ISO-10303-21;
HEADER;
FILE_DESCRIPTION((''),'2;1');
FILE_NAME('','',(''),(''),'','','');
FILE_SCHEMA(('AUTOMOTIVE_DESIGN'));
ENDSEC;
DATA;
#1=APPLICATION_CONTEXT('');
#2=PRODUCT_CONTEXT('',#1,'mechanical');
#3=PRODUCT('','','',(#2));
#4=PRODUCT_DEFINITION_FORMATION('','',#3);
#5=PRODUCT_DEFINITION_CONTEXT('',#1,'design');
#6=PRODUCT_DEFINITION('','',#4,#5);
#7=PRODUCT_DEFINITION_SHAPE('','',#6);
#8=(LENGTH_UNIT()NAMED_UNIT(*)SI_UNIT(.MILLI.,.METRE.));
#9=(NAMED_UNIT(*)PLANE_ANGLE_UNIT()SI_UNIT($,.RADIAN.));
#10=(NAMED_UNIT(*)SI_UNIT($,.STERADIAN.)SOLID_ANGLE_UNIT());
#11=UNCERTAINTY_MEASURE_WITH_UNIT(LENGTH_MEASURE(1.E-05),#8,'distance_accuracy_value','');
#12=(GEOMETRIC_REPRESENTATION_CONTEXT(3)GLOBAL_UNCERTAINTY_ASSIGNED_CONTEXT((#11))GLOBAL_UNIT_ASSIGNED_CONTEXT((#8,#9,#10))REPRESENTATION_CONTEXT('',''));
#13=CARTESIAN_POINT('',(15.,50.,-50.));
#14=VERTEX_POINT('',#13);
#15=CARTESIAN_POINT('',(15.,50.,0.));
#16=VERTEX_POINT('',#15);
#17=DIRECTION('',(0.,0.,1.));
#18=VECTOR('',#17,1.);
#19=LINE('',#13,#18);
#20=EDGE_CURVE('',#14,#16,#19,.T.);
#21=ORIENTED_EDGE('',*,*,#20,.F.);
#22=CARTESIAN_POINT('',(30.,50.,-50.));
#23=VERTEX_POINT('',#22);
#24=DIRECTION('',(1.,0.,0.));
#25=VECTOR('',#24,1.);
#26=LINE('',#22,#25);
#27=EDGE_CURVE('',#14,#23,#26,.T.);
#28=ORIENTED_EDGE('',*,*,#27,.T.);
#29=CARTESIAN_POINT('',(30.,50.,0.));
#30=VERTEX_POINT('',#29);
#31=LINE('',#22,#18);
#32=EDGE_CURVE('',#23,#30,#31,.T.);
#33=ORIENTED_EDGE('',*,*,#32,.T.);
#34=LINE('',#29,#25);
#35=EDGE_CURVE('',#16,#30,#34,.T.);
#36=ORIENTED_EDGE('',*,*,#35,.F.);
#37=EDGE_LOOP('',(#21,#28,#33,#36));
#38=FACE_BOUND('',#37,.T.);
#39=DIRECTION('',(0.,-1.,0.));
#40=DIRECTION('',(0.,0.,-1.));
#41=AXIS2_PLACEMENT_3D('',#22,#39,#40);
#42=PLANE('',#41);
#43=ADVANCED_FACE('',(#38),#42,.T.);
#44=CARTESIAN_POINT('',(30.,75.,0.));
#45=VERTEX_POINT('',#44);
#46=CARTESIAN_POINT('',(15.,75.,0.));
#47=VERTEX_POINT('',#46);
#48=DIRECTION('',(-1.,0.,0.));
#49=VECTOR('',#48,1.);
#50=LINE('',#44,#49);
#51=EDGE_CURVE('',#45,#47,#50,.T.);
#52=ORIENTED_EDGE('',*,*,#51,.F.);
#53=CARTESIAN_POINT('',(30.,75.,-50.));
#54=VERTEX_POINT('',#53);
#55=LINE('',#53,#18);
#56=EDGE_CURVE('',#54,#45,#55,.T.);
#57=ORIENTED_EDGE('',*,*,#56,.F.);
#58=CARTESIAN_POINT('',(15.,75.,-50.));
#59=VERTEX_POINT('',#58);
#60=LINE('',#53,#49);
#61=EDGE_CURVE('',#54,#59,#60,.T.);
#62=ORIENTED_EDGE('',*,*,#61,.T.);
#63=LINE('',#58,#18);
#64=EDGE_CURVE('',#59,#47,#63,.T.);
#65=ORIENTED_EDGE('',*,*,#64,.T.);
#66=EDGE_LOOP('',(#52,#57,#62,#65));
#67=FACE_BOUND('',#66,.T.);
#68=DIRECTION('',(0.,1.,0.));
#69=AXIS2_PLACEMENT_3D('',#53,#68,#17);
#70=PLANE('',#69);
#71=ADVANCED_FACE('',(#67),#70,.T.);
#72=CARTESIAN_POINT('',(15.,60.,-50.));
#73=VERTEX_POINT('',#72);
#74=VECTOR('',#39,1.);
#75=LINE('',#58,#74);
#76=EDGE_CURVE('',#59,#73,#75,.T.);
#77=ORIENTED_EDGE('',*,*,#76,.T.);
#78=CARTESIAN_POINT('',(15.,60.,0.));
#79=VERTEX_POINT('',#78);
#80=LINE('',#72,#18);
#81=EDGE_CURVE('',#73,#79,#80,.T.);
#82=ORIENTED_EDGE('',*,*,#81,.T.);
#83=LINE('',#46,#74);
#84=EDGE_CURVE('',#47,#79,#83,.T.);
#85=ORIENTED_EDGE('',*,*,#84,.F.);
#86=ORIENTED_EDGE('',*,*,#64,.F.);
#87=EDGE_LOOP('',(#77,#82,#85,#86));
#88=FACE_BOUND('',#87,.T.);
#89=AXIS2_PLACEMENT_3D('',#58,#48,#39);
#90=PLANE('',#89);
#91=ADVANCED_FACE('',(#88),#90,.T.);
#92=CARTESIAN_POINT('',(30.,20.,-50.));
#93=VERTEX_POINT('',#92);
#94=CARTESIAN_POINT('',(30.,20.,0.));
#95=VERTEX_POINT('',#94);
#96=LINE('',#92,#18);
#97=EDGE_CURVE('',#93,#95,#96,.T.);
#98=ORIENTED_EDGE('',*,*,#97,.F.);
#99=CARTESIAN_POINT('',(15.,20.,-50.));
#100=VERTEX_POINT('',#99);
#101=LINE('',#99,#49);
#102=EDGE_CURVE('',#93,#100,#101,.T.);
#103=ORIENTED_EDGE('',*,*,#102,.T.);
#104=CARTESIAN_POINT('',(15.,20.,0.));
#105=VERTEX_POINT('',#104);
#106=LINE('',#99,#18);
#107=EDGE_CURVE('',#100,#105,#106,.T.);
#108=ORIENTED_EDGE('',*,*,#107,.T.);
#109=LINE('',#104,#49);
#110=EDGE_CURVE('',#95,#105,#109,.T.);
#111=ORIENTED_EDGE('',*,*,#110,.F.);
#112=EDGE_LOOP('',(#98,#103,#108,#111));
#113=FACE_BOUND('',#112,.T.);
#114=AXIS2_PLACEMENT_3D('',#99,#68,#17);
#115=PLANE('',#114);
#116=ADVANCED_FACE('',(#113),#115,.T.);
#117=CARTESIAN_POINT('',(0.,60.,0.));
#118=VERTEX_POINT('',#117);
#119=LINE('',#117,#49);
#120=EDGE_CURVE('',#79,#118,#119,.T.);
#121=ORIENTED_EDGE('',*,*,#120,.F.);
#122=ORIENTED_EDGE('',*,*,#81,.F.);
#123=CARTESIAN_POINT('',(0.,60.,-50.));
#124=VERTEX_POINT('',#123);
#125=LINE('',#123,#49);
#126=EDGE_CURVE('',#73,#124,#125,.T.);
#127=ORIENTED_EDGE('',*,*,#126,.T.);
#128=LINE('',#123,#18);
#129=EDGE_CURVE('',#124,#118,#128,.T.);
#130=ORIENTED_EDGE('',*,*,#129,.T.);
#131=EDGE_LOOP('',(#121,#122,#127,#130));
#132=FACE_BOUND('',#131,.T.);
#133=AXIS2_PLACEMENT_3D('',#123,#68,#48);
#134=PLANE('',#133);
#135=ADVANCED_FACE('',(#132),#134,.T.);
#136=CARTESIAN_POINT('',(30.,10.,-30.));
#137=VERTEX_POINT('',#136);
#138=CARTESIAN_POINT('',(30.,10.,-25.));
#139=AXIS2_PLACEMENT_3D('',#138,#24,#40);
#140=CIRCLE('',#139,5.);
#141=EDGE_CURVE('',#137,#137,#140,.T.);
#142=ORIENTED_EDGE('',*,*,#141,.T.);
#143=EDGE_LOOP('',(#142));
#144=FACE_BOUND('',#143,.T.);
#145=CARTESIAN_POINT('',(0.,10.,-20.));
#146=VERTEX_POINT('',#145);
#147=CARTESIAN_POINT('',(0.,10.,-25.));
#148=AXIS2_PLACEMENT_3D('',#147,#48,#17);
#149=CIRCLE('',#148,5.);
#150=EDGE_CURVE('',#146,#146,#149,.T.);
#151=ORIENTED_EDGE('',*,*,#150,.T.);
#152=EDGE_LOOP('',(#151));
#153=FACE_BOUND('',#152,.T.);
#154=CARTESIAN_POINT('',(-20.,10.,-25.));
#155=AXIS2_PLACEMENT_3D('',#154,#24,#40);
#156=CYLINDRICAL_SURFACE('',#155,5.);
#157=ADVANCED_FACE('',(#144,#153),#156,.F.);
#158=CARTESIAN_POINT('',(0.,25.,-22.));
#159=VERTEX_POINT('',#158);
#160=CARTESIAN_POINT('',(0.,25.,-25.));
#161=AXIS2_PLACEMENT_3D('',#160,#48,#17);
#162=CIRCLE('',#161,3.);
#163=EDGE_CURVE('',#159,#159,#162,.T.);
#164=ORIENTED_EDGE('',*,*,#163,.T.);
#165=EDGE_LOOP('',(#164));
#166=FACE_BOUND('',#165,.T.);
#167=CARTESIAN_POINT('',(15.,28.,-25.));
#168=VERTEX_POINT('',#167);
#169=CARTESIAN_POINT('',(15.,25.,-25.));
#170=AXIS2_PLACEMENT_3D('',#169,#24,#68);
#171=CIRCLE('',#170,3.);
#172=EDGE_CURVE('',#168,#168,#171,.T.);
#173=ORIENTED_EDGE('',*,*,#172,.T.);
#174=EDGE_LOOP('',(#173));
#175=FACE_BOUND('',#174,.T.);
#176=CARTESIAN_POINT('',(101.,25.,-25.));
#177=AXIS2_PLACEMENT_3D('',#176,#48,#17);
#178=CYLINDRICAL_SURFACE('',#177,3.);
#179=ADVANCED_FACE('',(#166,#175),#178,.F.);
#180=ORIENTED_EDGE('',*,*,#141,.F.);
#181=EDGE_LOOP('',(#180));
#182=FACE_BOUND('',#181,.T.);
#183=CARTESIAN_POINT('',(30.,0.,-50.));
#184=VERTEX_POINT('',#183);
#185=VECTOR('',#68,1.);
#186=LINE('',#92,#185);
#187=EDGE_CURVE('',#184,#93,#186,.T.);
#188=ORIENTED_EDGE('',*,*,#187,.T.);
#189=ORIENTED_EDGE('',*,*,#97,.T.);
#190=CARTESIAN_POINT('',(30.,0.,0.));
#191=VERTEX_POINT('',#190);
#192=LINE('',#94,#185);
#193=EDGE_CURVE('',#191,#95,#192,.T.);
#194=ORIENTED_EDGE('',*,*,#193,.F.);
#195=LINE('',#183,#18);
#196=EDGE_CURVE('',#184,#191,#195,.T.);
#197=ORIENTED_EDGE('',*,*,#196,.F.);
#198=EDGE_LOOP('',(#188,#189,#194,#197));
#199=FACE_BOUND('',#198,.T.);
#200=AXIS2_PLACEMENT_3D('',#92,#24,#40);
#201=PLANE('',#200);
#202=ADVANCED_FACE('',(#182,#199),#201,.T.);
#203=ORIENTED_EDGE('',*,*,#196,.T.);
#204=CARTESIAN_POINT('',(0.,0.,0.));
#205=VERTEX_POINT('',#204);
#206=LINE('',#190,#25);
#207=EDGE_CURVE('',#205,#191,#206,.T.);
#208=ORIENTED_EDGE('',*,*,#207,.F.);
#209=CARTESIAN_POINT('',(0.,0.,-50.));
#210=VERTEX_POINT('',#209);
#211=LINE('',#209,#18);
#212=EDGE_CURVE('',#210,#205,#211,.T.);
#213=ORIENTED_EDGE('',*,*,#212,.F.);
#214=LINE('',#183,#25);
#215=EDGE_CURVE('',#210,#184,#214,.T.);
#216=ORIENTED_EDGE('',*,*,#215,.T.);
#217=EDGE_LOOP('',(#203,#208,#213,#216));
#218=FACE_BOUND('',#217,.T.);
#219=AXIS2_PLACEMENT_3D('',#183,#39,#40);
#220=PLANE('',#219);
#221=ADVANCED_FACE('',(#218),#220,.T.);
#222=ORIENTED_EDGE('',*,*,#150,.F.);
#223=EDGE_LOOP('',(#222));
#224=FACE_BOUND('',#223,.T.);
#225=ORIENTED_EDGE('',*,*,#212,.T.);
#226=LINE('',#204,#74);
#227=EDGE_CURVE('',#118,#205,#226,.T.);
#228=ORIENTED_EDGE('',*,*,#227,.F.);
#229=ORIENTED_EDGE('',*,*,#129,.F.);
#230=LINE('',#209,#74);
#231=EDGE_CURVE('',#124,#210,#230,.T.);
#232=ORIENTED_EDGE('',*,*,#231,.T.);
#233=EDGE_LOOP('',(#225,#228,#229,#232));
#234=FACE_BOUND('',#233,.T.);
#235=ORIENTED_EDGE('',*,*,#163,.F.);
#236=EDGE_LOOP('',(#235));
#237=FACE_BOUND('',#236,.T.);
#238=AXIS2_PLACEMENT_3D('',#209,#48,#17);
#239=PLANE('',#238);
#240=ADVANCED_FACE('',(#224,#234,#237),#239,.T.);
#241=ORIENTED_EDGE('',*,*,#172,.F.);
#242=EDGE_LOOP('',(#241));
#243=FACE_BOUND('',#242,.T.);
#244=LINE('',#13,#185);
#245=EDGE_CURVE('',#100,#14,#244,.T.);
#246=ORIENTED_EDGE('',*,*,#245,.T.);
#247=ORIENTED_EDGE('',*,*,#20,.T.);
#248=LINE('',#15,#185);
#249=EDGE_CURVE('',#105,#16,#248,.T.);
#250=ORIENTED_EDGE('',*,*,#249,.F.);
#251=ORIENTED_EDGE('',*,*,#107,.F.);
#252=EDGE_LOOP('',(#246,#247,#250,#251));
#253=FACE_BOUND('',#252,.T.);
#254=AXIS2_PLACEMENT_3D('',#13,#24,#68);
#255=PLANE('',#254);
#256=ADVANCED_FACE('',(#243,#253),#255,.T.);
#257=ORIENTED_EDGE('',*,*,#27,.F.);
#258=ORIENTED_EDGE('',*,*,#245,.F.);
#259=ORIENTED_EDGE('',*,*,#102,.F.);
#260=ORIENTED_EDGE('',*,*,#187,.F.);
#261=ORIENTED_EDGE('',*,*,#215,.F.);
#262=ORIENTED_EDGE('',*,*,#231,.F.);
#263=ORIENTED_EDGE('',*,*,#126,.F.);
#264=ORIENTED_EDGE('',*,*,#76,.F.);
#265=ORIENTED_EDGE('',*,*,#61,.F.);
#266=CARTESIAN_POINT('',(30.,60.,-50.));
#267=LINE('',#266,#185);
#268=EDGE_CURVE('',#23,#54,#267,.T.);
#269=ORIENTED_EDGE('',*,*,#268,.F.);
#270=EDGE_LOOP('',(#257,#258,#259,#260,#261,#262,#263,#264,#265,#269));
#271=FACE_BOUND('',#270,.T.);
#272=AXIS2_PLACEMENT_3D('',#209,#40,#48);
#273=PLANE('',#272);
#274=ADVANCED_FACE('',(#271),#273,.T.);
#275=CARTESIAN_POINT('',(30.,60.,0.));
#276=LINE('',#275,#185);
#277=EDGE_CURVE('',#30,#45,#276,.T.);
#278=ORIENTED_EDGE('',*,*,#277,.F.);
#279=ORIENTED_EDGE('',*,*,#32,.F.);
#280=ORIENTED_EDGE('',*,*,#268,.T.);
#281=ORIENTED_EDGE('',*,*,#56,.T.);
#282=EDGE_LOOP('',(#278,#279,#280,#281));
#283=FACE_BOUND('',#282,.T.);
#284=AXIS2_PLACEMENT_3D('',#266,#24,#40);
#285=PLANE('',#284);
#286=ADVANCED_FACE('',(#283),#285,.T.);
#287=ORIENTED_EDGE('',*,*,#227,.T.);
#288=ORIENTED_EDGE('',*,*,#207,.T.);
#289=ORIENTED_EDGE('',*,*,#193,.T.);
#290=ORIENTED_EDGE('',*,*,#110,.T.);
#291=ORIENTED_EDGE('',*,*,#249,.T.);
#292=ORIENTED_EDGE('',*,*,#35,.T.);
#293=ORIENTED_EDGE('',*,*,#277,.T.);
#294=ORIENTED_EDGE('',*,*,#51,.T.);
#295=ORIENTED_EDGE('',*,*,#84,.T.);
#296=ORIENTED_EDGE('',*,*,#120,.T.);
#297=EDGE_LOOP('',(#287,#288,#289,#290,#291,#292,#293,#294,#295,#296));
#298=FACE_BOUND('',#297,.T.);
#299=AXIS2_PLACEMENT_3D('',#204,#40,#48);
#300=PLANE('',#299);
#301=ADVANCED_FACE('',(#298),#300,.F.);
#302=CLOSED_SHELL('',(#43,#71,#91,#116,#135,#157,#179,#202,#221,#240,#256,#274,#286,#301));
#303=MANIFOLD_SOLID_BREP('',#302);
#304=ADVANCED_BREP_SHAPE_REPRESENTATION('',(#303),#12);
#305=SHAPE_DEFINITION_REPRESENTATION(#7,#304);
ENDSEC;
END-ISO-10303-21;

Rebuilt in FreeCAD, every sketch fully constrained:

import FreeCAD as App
import Part
import Sketcher

V = App.Vector
Q = App.Units.Quantity


def add_polygon(sketch, points):
    """Adds a closed chain of lines whose ends are joined by coincident constraints."""
    first, n = sketch.GeometryCount, len(points)
    for a, b in zip(points, points[1:] + points[:1]):
        sketch.addGeometry(Part.LineSegment(App.Vector(*a, 0), App.Vector(*b, 0)), False)
    for i in range(n):
        sketch.addConstraint(Sketcher.Constraint("Coincident", first + i, 2, first + (i + 1) % n, 1))

doc = App.newDocument("Part")
body = doc.addObject("PartDesign::Body", "Body")

sketch1 = body.newObject("Sketcher::SketchObject", "Sketch")
sketch1.AttachmentSupport = (doc.getObject("XY_Plane"), [""])
sketch1.MapMode = "FlatFace"
add_polygon(sketch1, [(0, 0), (30, 0), (30, 20), (15, 20), (15, 50), (30, 50), (30, 75), (15, 75), (15, 60), (0, 60)])
sketch1.addConstraint([
    Sketcher.Constraint("Horizontal", 0),
    Sketcher.Constraint("Vertical", 1),
    Sketcher.Constraint("Horizontal", 2),
    Sketcher.Constraint("Vertical", 3),
    Sketcher.Constraint("Horizontal", 4),
    Sketcher.Constraint("Vertical", 5),
    Sketcher.Constraint("Horizontal", 6),
    Sketcher.Constraint("Vertical", 7),
    Sketcher.Constraint("Horizontal", 8),
    Sketcher.Constraint("Vertical", 9),
    Sketcher.Constraint("Coincident", 9, 2, -1, 1),
    Sketcher.Constraint("Vertical", 1, 2, 4, 2),
    Sketcher.Constraint("Vertical", 3, 2, 6, 2),
    Sketcher.Constraint("Equal", 6, 8),
    Sketcher.Constraint("Equal", 0, 3),
    Sketcher.Constraint("Equal", 8, 7),
    Sketcher.Constraint("DistanceX", 0, 1, 0, 2, Q("30 mm")),
    Sketcher.Constraint("DistanceY", 1, 1, 1, 2, Q("20 mm")),
    Sketcher.Constraint("DistanceY", 5, 1, 5, 2, Q("25 mm")),
])
pad1 = body.newObject("PartDesign::Pad", "Pad")
pad1.Profile = sketch1
pad1.Length = 50
pad1.Reversed = True

sketch2 = body.newObject("Sketcher::SketchObject", "Sketch001")
sketch2.AttachmentSupport = (doc.getObject("YZ_Plane"), [""])
sketch2.MapMode = "FlatFace"
sketch2.AttachmentOffset = App.Placement(V(0, 0, 30), App.Rotation())
sketch2.addGeometry(Part.Circle(V(10, -25, 0), V(0, 0, 1), 5), False)
sketch2.addConstraint([
    Sketcher.Constraint("Diameter", 0, Q("10 mm")),
    Sketcher.Constraint("DistanceX", -1, 1, 0, 3, Q("10 mm")),
    Sketcher.Constraint("DistanceY", 0, 3, -1, 1, Q("25 mm")),
])
pocket1 = body.newObject("PartDesign::Pocket", "Pocket")
pocket1.Profile = sketch2
pocket1.Length = 50

sketch3 = body.newObject("Sketcher::SketchObject", "Sketch002")
sketch3.AttachmentSupport = (doc.getObject("YZ_Plane"), [""])
sketch3.MapMode = "FlatFace"
sketch3.addGeometry(Part.Circle(V(25, -25, 0), V(0, 0, 1), 3), False)
sketch3.addConstraint([
    Sketcher.Constraint("Diameter", 0, Q("6 mm")),
    Sketcher.Constraint("DistanceX", -1, 1, 0, 3, Q("25 mm")),
    Sketcher.Constraint("DistanceY", 0, 3, -1, 1, Q("25 mm")),
])
pocket2 = body.newObject("PartDesign::Pocket", "Pocket001")
pocket2.Profile = sketch3
pocket2.Length = 101
pocket2.Reversed = True

doc.recompute()
